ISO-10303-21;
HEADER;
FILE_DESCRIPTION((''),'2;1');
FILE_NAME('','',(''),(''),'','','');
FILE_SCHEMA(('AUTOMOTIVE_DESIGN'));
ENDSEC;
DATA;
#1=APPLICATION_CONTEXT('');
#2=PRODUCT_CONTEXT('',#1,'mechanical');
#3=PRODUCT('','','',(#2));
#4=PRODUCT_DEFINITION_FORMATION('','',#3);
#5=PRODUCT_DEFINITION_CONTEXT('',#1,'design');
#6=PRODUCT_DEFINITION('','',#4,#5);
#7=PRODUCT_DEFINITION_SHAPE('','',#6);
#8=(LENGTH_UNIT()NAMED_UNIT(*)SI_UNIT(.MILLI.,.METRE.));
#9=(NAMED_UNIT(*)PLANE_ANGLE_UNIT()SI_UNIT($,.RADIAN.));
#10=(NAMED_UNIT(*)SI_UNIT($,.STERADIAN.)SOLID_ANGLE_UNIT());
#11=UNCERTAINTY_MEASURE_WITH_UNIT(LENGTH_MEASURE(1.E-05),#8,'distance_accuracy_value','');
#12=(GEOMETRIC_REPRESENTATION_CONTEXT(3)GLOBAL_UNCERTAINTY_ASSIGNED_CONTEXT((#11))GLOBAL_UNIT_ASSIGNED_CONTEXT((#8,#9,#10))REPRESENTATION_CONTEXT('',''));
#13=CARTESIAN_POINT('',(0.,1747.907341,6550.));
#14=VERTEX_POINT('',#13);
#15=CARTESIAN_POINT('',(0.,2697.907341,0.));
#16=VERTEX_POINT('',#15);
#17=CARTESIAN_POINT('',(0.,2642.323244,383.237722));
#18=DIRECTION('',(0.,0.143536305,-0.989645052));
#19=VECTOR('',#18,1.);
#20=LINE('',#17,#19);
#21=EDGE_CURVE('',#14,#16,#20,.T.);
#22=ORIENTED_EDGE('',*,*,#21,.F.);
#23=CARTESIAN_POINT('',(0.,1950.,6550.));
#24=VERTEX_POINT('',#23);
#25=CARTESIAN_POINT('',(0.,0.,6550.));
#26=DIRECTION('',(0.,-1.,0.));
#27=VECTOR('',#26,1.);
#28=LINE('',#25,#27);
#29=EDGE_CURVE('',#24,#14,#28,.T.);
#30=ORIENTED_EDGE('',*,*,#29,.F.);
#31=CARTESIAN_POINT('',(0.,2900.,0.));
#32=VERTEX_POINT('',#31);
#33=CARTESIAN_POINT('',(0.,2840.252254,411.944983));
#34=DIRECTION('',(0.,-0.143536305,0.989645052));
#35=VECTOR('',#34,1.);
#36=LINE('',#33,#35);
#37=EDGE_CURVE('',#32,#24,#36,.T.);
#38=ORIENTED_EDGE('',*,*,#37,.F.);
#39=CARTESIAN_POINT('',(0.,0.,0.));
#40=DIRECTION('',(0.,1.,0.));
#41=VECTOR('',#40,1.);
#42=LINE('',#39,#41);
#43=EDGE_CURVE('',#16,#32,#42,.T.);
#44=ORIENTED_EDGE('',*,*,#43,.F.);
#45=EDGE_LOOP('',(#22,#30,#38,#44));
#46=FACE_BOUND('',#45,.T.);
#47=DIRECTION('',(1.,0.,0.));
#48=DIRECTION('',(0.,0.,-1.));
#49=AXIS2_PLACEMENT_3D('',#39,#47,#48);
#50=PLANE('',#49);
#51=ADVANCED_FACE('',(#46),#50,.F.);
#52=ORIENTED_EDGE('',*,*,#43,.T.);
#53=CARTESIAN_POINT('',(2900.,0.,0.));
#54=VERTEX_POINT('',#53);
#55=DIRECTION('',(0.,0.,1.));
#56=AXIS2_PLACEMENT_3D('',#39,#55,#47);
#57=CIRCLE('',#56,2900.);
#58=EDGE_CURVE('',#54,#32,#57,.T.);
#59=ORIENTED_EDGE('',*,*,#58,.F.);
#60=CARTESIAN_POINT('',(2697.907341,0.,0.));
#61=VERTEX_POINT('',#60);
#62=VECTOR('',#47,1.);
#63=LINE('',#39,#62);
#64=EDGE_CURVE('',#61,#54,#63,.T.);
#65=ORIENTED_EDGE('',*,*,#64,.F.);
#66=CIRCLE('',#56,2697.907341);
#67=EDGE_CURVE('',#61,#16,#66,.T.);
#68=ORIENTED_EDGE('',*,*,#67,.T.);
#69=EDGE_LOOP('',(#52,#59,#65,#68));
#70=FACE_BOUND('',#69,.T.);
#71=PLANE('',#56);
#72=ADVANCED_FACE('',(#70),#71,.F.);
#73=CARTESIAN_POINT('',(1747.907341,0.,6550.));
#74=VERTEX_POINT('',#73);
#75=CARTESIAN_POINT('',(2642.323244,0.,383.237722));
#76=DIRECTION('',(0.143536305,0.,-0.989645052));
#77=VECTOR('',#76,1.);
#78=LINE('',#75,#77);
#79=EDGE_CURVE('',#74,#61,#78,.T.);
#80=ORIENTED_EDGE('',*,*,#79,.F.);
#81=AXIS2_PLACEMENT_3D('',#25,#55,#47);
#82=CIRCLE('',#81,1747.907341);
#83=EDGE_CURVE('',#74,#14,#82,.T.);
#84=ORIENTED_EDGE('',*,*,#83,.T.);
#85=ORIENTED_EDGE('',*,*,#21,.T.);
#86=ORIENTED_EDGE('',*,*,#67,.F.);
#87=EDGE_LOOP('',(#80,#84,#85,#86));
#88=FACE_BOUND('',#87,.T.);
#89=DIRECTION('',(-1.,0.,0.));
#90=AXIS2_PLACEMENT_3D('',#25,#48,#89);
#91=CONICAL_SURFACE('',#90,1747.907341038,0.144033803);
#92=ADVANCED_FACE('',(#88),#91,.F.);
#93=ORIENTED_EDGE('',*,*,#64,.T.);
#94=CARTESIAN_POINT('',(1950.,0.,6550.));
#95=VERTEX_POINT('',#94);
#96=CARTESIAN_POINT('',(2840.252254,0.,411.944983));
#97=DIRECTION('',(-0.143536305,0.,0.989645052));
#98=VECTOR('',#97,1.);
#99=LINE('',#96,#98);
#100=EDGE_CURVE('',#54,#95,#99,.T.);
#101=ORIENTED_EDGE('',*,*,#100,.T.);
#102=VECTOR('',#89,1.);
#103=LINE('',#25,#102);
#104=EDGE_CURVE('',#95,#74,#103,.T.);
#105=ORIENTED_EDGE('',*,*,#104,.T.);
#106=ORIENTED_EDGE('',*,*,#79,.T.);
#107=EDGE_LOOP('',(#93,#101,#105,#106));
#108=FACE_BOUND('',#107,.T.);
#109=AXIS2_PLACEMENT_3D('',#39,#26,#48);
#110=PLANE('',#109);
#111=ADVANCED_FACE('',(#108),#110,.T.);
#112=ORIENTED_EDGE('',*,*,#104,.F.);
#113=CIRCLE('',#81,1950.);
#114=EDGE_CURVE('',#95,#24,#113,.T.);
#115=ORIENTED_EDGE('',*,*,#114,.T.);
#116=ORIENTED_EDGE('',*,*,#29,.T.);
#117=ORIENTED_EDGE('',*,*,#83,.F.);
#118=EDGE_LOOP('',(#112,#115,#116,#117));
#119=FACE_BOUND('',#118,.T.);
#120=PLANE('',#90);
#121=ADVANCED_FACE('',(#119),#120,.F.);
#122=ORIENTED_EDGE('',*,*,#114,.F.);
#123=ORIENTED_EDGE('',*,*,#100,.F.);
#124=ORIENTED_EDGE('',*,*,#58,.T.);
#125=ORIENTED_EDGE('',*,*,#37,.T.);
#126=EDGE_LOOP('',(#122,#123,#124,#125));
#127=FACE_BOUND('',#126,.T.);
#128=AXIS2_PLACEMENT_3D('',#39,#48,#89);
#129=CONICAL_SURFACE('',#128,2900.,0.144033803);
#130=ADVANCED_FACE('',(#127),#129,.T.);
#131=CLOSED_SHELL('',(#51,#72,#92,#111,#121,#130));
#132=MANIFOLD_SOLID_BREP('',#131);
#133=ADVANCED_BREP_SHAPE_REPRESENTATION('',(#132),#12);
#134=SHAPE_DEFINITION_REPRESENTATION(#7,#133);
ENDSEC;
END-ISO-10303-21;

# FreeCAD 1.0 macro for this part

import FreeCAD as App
import Part
import Sketcher

doc = App.newDocument("Part")
body = doc.addObject("PartDesign::Body", "Body")

sketch1 = doc.addObject("Sketcher::SketchObject", "Sketch")
body.addObject(sketch1)
sketch1.AttachmentSupport = (doc.YZ_Plane, [""])
sketch1.MapMode = "FlatFace"
sketch1.addGeometry(Part.LineSegment(App.Vector(1950, 6550, 0), App.Vector(1747.907341, 6550, 0)), False)
sketch1.addGeometry(Part.LineSegment(App.Vector(1747.907341, 6550, 0), App.Vector(2697.907341, 0, 0)), False)
sketch1.addGeometry(Part.LineSegment(App.Vector(2697.907341, 0, 0), App.Vector(2900, 0, 0)), False)
sketch1.addGeometry(Part.LineSegment(App.Vector(2900, 0, 0), App.Vector(1950, 6550, 0)), False)
sketch1.addConstraint(Sketcher.Constraint("Coincident", 0, 2, 1, 1))
sketch1.addConstraint(Sketcher.Constraint("Coincident", 1, 2, 2, 1))
sketch1.addConstraint(Sketcher.Constraint("Coincident", 2, 2, 3, 1))
sketch1.addConstraint(Sketcher.Constraint("Coincident", 3, 2, 0, 1))
sketch1.addConstraint(Sketcher.Constraint("Horizontal", 0))
sketch1.addConstraint(Sketcher.Constraint("Horizontal", 2))
sketch1.addConstraint(Sketcher.Constraint("PointOnObject", 1, 2, -1))
sketch1.addConstraint(Sketcher.Constraint("Parallel", 1, 3))
sketch1.addConstraint(Sketcher.Constraint("DistanceY", -1, 1, 0, 2, 6550.0))
sketch1.addConstraint(Sketcher.Constraint("DistanceX", -1, 1, 2, 2, 2900.0))
sketch1.addConstraint(Sketcher.Constraint("DistanceX", -1, 1, 3, 2, 1950.0))
sketch1.addConstraint(Sketcher.Constraint("DistanceX", 0, 2, 0, 1, 202.092659))
revolution = doc.addObject("PartDesign::Revolution", "Revolution")
body.addObject(revolution)
revolution.Profile = sketch1
revolution.ReferenceAxis = (sketch1, ["V_Axis"])
revolution.Angle = 90
revolution.Reversed = True

doc.recompute()
